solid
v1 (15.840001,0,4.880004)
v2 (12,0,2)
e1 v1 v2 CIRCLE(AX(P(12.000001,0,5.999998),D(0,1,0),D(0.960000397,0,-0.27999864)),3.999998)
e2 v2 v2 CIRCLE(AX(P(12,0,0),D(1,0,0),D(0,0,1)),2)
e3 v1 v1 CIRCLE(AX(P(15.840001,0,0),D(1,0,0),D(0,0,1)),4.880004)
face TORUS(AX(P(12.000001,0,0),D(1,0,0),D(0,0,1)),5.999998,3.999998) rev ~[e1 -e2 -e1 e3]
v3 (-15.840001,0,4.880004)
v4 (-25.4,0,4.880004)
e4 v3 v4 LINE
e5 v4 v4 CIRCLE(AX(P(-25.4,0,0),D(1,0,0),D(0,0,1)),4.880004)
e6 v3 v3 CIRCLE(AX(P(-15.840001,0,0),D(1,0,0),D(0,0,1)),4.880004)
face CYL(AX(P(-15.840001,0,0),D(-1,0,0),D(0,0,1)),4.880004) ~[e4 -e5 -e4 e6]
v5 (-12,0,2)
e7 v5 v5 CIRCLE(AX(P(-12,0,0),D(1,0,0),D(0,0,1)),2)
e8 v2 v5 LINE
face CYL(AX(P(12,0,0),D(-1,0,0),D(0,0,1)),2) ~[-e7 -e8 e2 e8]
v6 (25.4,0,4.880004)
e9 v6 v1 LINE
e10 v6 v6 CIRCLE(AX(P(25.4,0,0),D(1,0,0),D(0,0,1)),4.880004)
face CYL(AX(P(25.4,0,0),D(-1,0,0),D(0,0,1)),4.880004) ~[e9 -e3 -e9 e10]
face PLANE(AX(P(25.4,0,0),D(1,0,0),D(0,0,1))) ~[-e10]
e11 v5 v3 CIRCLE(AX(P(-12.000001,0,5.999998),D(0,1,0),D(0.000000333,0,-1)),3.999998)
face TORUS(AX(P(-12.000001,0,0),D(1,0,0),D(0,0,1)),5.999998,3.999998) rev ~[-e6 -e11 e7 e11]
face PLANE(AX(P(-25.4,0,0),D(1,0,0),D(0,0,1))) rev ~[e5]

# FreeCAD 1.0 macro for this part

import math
import FreeCAD as App
import Part
import Sketcher
Q = App.Units.Quantity

doc = App.newDocument("Part")
body = doc.addObject("PartDesign::Body", "Body")

# Sketch on XZ plane
sketch1 = doc.addObject("Sketcher::SketchObject", "Sketch")
body.addObject(sketch1)
sketch1.AttachmentSupport = (doc.XZ_Plane, [""])
sketch1.MapMode = "FlatFace"
sketch1.addGeometry([
    Part.LineSegment(App.Vector(12, 2, 0), App.Vector(-12, 2, 0)),  # 0
    Part.ArcOfCircle(Part.Circle(App.Vector(-12.000001, 5.999998, 0), App.Vector(0, 0, 1), 3.999998), math.radians(-163.739876), math.radians(-89.999981)),  # 1
    Part.LineSegment(App.Vector(-15.840001, 4.880004, 0), App.Vector(-25.4, 4.880004, 0)),  # 2
    Part.LineSegment(App.Vector(-25.4, 4.880004, 0), App.Vector(-25.4, 0, 0)),  # 3
    Part.LineSegment(App.Vector(-25.4, 0, 0), App.Vector(25.4, 0, 0)),  # 4
    Part.LineSegment(App.Vector(25.4, 0, 0), App.Vector(25.4, 4.880004, 0)),  # 5
    Part.LineSegment(App.Vector(25.4, 4.880004, 0), App.Vector(15.840001, 4.880004, 0)),  # 6
    Part.ArcOfCircle(Part.Circle(App.Vector(12.000001, 5.999998, 0), App.Vector(0, 0, 1), 3.999998), math.radians(-90.000019), math.radians(-16.260124)),  # 7
], False)
sketch1.addConstraint([
    Sketcher.Constraint("Tangent", 0, 2, 1, 2),
    Sketcher.Constraint("Coincident", 1, 1, 2, 1),
    Sketcher.Constraint("Coincident", 2, 2, 3, 1),
    Sketcher.Constraint("Coincident", 3, 2, 4, 1),
    Sketcher.Constraint("Coincident", 4, 2, 5, 1),
    Sketcher.Constraint("Coincident", 5, 2, 6, 1),
    Sketcher.Constraint("Coincident", 6, 2, 7, 2),
    Sketcher.Constraint("Tangent", 7, 1, 0, 1),
    Sketcher.Constraint("Horizontal", 0),
    Sketcher.Constraint("Horizontal", 2),
    Sketcher.Constraint("Vertical", 3),
    Sketcher.Constraint("Horizontal", 4),
    Sketcher.Constraint("Vertical", 5),
    Sketcher.Constraint("Horizontal", 6),
    Sketcher.Constraint("Equal", 1, 7),
    Sketcher.Constraint("Symmetric", 3, 2, 4, 2, -1, 1),
    Sketcher.Constraint("Symmetric", 1, 1, 6, 2, -2),
    Sketcher.Constraint("Radius", 1, Q("3.999998 mm")),
    Sketcher.Constraint("DistanceX", 0, 2, 0, 1, Q("24 mm")),
    Sketcher.Constraint("DistanceX", 4, 1, 4, 2, Q("50.8 mm")),
    Sketcher.Constraint("DistanceY", -1, 1, 0, 2, Q("2 mm")),
    Sketcher.Constraint("DistanceX", 2, 2, 2, 1, Q("9.559999 mm")),
])
revolution = doc.addObject("PartDesign::Revolution", "Revolution")
body.addObject(revolution)
revolution.Profile = sketch1
revolution.ReferenceAxis = (sketch1, ["H_Axis"])
revolution.Angle = 360

doc.recompute()
